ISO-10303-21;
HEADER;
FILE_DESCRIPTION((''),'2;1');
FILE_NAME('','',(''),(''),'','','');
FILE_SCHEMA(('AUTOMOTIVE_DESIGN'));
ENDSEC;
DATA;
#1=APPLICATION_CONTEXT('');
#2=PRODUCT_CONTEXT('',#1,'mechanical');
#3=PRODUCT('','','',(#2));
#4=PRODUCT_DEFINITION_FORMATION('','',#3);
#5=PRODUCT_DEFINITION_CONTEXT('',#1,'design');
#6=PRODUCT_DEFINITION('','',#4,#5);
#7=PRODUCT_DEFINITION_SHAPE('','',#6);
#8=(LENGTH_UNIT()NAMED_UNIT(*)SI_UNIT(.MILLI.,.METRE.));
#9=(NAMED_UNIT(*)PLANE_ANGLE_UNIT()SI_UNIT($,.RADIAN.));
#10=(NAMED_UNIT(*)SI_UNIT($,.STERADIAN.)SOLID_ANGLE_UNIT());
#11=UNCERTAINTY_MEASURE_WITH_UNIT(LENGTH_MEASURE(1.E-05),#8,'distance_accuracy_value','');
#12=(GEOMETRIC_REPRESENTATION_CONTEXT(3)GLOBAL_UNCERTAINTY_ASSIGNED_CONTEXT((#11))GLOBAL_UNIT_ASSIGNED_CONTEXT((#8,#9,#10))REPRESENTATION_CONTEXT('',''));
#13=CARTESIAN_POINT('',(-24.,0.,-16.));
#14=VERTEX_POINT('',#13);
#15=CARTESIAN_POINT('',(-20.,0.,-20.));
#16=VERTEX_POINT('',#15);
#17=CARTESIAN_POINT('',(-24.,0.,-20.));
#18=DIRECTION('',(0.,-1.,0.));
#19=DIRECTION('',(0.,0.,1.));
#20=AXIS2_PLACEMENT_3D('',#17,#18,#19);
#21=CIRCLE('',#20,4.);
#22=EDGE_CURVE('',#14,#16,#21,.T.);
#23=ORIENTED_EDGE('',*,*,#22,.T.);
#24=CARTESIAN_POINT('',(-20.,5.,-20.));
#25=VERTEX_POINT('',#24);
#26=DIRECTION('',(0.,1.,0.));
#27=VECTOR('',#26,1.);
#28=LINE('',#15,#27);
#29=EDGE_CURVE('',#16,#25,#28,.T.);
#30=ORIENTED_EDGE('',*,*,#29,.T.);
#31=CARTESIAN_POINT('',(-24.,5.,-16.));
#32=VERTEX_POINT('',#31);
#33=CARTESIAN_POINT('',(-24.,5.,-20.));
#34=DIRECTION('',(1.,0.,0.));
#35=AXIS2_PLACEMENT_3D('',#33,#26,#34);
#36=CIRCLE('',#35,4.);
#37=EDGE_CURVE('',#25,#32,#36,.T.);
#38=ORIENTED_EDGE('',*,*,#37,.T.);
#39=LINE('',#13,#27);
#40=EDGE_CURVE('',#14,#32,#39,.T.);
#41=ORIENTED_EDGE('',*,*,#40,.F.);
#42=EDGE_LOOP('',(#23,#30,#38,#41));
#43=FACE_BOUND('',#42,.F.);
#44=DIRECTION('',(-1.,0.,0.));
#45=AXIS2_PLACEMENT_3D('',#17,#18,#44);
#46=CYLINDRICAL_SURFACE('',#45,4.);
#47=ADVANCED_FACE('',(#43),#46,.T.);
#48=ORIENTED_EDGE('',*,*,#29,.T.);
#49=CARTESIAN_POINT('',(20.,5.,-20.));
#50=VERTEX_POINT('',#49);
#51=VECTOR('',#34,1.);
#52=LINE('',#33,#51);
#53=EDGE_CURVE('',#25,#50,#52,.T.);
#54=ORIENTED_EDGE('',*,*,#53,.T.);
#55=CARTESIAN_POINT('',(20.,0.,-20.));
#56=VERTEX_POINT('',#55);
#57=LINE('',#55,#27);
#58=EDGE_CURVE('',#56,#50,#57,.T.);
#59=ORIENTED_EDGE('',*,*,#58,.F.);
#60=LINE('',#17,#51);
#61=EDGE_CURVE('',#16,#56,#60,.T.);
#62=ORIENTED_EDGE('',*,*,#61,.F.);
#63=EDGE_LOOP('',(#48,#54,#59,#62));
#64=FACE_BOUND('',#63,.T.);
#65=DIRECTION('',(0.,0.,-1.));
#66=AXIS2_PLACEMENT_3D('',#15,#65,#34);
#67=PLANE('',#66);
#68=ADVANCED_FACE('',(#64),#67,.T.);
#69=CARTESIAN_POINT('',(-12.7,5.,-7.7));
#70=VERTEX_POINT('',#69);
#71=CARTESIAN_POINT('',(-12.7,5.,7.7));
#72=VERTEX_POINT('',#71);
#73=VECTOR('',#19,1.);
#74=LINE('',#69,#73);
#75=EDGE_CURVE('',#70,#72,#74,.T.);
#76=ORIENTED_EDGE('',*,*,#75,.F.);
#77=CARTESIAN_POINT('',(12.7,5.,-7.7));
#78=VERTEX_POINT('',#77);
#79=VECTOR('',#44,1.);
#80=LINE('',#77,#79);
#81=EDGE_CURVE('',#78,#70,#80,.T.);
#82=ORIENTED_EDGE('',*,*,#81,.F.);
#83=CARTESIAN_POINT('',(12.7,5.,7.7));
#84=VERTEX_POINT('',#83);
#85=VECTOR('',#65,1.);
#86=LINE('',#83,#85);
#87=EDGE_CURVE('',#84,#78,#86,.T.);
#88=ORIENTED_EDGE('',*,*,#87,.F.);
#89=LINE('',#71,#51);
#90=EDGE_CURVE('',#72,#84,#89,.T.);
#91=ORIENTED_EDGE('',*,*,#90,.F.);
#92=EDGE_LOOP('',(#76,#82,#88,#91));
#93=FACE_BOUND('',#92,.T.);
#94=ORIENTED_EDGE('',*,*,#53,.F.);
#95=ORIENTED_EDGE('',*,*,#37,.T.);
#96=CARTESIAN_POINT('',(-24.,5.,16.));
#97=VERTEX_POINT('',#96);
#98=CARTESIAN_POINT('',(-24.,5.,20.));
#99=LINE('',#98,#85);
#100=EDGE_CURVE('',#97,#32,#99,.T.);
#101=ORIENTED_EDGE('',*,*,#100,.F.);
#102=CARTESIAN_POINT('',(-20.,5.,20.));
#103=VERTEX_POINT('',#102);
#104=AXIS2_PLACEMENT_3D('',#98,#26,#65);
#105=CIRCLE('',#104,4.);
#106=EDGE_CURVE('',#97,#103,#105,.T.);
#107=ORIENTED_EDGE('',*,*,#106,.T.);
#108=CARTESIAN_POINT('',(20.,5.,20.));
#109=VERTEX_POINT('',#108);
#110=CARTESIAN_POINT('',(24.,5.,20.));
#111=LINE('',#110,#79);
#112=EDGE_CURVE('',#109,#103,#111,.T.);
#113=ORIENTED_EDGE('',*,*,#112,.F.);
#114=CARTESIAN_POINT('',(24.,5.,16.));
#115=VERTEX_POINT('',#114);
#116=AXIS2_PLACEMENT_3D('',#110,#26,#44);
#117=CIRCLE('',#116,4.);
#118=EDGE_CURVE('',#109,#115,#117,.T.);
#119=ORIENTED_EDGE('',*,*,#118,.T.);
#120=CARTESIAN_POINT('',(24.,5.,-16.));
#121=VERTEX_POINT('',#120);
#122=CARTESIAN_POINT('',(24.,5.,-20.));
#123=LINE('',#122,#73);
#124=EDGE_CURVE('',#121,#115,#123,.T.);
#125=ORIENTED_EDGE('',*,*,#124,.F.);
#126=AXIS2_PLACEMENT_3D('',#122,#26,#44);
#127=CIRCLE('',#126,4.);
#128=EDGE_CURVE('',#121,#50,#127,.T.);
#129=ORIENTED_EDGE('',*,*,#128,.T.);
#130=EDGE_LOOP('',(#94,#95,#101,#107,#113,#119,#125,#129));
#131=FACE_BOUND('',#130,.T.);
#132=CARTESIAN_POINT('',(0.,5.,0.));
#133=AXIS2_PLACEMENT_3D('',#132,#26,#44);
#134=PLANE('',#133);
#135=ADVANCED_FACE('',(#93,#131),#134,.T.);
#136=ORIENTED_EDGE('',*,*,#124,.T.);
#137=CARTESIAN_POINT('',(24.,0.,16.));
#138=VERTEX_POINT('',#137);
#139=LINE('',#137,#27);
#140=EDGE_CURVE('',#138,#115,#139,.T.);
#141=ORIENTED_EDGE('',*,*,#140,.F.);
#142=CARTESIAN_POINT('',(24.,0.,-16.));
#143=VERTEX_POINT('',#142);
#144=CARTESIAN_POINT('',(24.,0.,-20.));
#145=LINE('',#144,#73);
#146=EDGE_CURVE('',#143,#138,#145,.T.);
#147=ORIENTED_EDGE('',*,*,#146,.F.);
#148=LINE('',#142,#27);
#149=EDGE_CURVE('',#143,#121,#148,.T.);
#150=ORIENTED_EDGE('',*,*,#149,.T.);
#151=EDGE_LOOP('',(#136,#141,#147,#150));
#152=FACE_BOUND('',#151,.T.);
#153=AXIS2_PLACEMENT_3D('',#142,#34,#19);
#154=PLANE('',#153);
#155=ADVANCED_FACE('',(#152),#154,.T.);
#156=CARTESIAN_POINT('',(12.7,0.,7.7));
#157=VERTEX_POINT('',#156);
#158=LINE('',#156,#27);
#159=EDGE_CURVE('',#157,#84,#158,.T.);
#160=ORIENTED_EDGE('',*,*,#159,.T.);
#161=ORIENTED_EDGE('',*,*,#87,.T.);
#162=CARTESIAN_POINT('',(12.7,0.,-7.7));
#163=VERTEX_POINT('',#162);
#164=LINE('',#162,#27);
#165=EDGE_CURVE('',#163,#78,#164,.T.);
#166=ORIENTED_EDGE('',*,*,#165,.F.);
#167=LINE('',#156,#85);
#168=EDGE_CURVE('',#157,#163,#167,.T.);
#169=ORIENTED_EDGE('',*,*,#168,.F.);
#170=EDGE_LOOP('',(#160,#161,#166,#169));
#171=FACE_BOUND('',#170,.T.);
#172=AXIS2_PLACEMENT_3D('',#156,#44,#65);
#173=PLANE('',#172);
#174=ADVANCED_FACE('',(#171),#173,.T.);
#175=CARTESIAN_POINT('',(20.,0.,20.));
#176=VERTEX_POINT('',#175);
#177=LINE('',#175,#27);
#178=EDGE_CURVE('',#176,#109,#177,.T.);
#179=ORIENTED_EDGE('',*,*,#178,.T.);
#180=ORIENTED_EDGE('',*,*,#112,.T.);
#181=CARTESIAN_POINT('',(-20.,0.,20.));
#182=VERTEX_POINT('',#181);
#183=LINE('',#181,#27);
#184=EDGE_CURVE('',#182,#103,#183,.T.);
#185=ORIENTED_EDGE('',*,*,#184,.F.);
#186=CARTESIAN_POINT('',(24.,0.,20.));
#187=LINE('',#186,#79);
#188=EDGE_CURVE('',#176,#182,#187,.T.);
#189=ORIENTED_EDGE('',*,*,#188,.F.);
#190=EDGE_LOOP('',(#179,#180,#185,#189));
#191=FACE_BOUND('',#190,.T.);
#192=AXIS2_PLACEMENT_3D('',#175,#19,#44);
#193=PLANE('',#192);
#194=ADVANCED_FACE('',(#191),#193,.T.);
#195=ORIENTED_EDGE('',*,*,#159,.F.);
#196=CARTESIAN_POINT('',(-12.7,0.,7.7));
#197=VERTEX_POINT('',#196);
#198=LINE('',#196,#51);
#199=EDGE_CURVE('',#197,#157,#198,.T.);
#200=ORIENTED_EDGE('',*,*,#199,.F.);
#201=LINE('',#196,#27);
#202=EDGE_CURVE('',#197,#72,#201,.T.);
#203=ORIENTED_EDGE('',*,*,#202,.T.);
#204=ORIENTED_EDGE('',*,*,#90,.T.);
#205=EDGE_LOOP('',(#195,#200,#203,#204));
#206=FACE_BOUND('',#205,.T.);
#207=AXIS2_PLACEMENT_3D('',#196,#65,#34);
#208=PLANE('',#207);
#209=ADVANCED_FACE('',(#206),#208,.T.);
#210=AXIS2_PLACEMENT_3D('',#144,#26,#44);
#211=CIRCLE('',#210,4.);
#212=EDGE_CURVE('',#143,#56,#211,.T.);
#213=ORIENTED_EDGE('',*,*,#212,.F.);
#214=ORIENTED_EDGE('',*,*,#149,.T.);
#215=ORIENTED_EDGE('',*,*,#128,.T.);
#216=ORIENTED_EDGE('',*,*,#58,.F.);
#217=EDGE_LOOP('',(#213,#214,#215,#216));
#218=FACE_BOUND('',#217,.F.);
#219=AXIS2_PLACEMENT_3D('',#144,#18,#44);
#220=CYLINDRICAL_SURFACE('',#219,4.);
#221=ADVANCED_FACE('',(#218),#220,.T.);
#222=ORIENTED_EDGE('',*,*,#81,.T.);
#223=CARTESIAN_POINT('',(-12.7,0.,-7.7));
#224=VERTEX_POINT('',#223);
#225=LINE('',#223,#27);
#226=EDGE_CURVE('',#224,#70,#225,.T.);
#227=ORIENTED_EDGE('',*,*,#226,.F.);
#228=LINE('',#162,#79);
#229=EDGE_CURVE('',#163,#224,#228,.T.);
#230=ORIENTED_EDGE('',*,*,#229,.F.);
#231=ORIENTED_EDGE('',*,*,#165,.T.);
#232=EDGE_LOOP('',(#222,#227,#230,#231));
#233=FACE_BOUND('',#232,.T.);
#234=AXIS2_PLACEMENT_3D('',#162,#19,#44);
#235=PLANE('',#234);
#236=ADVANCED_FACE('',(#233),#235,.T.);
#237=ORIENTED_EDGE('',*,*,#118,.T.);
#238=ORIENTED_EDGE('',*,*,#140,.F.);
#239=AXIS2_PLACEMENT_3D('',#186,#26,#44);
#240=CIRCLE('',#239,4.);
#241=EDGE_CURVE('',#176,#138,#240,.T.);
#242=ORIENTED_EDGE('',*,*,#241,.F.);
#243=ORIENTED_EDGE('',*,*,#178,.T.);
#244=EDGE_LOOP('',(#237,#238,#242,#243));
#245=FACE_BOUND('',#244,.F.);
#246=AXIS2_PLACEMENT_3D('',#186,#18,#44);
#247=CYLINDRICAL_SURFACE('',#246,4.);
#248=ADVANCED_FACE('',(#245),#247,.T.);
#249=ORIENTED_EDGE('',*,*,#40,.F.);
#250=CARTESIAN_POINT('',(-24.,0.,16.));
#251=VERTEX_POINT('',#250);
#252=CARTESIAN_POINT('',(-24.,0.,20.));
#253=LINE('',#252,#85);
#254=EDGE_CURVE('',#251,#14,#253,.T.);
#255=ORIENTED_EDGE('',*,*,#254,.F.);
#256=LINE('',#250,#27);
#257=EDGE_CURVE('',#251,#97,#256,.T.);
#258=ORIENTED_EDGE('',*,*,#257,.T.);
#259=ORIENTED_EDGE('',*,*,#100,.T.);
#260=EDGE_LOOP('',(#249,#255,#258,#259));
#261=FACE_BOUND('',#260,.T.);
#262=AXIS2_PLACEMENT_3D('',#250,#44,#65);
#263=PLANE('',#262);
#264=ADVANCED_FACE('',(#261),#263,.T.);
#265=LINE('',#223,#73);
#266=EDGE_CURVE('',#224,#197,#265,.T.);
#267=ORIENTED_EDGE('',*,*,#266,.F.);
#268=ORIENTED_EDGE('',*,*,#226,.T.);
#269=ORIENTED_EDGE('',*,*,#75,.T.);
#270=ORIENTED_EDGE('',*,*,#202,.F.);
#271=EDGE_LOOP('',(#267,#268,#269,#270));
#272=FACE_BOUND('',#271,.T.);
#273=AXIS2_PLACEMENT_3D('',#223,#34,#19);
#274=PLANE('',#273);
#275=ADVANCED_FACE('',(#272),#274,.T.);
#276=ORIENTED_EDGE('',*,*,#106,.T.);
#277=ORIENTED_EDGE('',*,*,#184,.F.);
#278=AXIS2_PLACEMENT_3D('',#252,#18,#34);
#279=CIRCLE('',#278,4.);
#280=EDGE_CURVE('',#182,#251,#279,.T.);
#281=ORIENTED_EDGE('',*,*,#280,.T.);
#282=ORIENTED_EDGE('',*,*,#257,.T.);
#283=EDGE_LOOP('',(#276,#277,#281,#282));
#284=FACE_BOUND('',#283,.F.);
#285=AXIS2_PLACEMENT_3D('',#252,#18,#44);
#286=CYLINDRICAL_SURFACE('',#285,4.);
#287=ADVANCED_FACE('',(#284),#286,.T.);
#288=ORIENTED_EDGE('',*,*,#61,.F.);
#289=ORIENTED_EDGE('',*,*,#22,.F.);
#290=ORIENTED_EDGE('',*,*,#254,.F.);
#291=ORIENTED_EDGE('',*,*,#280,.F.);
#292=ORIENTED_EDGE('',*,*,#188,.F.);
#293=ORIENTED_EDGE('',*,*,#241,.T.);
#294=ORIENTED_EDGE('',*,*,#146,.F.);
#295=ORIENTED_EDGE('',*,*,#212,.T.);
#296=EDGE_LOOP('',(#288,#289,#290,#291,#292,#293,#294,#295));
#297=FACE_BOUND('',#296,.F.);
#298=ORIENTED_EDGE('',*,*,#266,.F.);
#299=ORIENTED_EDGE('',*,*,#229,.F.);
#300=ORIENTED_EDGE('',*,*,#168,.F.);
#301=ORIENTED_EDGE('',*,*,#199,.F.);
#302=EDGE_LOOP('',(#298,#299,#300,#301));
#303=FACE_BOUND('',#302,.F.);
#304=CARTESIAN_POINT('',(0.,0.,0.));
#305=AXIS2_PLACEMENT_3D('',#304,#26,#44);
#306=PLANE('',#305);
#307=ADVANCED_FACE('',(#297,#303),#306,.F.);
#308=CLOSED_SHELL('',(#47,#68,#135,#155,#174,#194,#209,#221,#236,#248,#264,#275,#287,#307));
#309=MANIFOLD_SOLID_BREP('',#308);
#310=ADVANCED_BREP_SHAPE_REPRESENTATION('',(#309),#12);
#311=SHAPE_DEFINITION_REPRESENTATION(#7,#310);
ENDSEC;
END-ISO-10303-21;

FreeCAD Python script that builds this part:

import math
import FreeCAD as App
import Part
import Sketcher
from FreeCAD import Vector
Q = App.Units.Quantity


def add_polygon(sketch, points):
    """Adds a closed chain of lines whose ends are joined by coincident constraints."""
    first, n = sketch.GeometryCount, len(points)
    for a, b in zip(points, points[1:] + points[:1]):
        sketch.addGeometry(Part.LineSegment(App.Vector(*a, 0), App.Vector(*b, 0)), False)
    for i in range(n):
        sketch.addConstraint(Sketcher.Constraint("Coincident", first + i, 2, first + (i + 1) % n, 1))

doc = App.newDocument("Part")
params = doc.addObject("Spreadsheet::Sheet", "Params")
for row, (alias, value) in enumerate([
    ("sketch1_radius", "4 mm"),
    ("sketch1_width", "40 mm"),
    ("sketch1_width2", "25.4 mm"),
    ("sketch1_height", "15.4 mm"),
    ("pad1_length", "5 mm"),
], start=1):
    params.set(f"A{row}", alias)
    params.set(f"B{row}", "=" + value)
    params.setAlias(f"B{row}", alias)

body = doc.addObject("PartDesign::Body", "Body")

# Sketch on XZ plane
sketch1 = body.newObject("Sketcher::SketchObject", "Sketch")
sketch1.AttachmentSupport = (doc.getObject("XZ_Plane"), [""])
sketch1.MapMode = "FlatFace"
sketch1.addGeometry(Part.ArcOfCircle(Part.Circle(Vector(24, -20, 0), Vector(0, 0, 1), 4), math.radians(180), math.radians(450)), False)  # 0
sketch1.addGeometry(Part.LineSegment(Vector(20, -20, 0), Vector(-20, -20, 0)), False)  # 1
sketch1.addGeometry(Part.ArcOfCircle(Part.Circle(Vector(-24, -20, 0), Vector(0, 0, 1), 4), math.radians(90), math.radians(360)), False)  # 2
sketch1.addGeometry(Part.LineSegment(Vector(-24, -16, 0), Vector(-24, 16, 0)), False)  # 3
sketch1.addGeometry(Part.ArcOfCircle(Part.Circle(Vector(-24, 20, 0), Vector(0, 0, 1), 4), math.radians(0), math.radians(270)), False)  # 4
sketch1.addGeometry(Part.LineSegment(Vector(-20, 20, 0), Vector(20, 20, 0)), False)  # 5
sketch1.addGeometry(Part.ArcOfCircle(Part.Circle(Vector(24, 20, 0), Vector(0, 0, 1), 4), math.radians(-90), math.radians(180)), False)  # 6
sketch1.addGeometry(Part.LineSegment(Vector(24, 16, 0), Vector(24, -16, 0)), False)  # 7
add_polygon(sketch1, [(-12.7, 7.7), (-12.7, -7.7), (12.7, -7.7), (12.7, 7.7)])  # lines 8-11
sketch1.addConstraint([
    Sketcher.Constraint("Coincident", 0, 1, 1, 1),
    Sketcher.Constraint("Coincident", 1, 2, 2, 2),
    Sketcher.Constraint("Coincident", 2, 1, 3, 1),
    Sketcher.Constraint("Coincident", 3, 2, 4, 2),
    Sketcher.Constraint("Coincident", 4, 1, 5, 1),
    Sketcher.Constraint("Coincident", 5, 2, 6, 2),
    Sketcher.Constraint("Coincident", 6, 1, 7, 1),
    Sketcher.Constraint("Coincident", 7, 2, 0, 2),
    Sketcher.Constraint("Horizontal", 1),
    Sketcher.Constraint("Vertical", 3),
    Sketcher.Constraint("Horizontal", 5),
    Sketcher.Constraint("Vertical", 7),
    Sketcher.Constraint("Vertical", 8),
    Sketcher.Constraint("Horizontal", 9),
    Sketcher.Constraint("Vertical", 10),
    Sketcher.Constraint("Horizontal", 11),
    Sketcher.Constraint("Equal", 0, 2),
    Sketcher.Constraint("Equal", 2, 4),
    Sketcher.Constraint("Equal", 4, 6),
    Sketcher.Constraint("Symmetric", 0, 3, 4, 3, -1, 1),
    Sketcher.Constraint("Symmetric", 2, 3, 6, 3, -1, 1),
    Sketcher.Constraint("Symmetric", 8, 2, 10, 2, -1, 1),
    Sketcher.Constraint("Symmetric", 0, 3, 2, 3, -2),
    Sketcher.Constraint("Horizontal", 2, 3, 0, 1),
    Sketcher.Constraint("Horizontal", 6, 3, 4, 1),
    Sketcher.Constraint("Vertical", 4, 3, 2, 1),
    Sketcher.Constraint("Vertical", 0, 3, 6, 1),
    Sketcher.Constraint("Radius", 0, Q("4 mm")),
    Sketcher.Constraint("DistanceX", 1, 2, 1, 1, Q("40 mm")),
    Sketcher.Constraint("DistanceX", 9, 1, 9, 2, Q("25.4 mm")),
    Sketcher.Constraint("DistanceY", 8, 2, 8, 1, Q("15.4 mm")),
    Sketcher.Constraint("DistanceY", 2, 3, 4, 3, Q("40 mm")),
])
sketch1.setExpression("Constraints[31]", "Params.sketch1_radius")
sketch1.setExpression("Constraints[32]", "Params.sketch1_width")
sketch1.setExpression("Constraints[33]", "Params.sketch1_width2")
sketch1.setExpression("Constraints[34]", "Params.sketch1_height")
pad1 = body.newObject("PartDesign::Pad", "Pad")
pad1.Profile = sketch1
pad1.setExpression("Length", "Params.pad1_length")
pad1.Reversed = True

doc.recompute()
